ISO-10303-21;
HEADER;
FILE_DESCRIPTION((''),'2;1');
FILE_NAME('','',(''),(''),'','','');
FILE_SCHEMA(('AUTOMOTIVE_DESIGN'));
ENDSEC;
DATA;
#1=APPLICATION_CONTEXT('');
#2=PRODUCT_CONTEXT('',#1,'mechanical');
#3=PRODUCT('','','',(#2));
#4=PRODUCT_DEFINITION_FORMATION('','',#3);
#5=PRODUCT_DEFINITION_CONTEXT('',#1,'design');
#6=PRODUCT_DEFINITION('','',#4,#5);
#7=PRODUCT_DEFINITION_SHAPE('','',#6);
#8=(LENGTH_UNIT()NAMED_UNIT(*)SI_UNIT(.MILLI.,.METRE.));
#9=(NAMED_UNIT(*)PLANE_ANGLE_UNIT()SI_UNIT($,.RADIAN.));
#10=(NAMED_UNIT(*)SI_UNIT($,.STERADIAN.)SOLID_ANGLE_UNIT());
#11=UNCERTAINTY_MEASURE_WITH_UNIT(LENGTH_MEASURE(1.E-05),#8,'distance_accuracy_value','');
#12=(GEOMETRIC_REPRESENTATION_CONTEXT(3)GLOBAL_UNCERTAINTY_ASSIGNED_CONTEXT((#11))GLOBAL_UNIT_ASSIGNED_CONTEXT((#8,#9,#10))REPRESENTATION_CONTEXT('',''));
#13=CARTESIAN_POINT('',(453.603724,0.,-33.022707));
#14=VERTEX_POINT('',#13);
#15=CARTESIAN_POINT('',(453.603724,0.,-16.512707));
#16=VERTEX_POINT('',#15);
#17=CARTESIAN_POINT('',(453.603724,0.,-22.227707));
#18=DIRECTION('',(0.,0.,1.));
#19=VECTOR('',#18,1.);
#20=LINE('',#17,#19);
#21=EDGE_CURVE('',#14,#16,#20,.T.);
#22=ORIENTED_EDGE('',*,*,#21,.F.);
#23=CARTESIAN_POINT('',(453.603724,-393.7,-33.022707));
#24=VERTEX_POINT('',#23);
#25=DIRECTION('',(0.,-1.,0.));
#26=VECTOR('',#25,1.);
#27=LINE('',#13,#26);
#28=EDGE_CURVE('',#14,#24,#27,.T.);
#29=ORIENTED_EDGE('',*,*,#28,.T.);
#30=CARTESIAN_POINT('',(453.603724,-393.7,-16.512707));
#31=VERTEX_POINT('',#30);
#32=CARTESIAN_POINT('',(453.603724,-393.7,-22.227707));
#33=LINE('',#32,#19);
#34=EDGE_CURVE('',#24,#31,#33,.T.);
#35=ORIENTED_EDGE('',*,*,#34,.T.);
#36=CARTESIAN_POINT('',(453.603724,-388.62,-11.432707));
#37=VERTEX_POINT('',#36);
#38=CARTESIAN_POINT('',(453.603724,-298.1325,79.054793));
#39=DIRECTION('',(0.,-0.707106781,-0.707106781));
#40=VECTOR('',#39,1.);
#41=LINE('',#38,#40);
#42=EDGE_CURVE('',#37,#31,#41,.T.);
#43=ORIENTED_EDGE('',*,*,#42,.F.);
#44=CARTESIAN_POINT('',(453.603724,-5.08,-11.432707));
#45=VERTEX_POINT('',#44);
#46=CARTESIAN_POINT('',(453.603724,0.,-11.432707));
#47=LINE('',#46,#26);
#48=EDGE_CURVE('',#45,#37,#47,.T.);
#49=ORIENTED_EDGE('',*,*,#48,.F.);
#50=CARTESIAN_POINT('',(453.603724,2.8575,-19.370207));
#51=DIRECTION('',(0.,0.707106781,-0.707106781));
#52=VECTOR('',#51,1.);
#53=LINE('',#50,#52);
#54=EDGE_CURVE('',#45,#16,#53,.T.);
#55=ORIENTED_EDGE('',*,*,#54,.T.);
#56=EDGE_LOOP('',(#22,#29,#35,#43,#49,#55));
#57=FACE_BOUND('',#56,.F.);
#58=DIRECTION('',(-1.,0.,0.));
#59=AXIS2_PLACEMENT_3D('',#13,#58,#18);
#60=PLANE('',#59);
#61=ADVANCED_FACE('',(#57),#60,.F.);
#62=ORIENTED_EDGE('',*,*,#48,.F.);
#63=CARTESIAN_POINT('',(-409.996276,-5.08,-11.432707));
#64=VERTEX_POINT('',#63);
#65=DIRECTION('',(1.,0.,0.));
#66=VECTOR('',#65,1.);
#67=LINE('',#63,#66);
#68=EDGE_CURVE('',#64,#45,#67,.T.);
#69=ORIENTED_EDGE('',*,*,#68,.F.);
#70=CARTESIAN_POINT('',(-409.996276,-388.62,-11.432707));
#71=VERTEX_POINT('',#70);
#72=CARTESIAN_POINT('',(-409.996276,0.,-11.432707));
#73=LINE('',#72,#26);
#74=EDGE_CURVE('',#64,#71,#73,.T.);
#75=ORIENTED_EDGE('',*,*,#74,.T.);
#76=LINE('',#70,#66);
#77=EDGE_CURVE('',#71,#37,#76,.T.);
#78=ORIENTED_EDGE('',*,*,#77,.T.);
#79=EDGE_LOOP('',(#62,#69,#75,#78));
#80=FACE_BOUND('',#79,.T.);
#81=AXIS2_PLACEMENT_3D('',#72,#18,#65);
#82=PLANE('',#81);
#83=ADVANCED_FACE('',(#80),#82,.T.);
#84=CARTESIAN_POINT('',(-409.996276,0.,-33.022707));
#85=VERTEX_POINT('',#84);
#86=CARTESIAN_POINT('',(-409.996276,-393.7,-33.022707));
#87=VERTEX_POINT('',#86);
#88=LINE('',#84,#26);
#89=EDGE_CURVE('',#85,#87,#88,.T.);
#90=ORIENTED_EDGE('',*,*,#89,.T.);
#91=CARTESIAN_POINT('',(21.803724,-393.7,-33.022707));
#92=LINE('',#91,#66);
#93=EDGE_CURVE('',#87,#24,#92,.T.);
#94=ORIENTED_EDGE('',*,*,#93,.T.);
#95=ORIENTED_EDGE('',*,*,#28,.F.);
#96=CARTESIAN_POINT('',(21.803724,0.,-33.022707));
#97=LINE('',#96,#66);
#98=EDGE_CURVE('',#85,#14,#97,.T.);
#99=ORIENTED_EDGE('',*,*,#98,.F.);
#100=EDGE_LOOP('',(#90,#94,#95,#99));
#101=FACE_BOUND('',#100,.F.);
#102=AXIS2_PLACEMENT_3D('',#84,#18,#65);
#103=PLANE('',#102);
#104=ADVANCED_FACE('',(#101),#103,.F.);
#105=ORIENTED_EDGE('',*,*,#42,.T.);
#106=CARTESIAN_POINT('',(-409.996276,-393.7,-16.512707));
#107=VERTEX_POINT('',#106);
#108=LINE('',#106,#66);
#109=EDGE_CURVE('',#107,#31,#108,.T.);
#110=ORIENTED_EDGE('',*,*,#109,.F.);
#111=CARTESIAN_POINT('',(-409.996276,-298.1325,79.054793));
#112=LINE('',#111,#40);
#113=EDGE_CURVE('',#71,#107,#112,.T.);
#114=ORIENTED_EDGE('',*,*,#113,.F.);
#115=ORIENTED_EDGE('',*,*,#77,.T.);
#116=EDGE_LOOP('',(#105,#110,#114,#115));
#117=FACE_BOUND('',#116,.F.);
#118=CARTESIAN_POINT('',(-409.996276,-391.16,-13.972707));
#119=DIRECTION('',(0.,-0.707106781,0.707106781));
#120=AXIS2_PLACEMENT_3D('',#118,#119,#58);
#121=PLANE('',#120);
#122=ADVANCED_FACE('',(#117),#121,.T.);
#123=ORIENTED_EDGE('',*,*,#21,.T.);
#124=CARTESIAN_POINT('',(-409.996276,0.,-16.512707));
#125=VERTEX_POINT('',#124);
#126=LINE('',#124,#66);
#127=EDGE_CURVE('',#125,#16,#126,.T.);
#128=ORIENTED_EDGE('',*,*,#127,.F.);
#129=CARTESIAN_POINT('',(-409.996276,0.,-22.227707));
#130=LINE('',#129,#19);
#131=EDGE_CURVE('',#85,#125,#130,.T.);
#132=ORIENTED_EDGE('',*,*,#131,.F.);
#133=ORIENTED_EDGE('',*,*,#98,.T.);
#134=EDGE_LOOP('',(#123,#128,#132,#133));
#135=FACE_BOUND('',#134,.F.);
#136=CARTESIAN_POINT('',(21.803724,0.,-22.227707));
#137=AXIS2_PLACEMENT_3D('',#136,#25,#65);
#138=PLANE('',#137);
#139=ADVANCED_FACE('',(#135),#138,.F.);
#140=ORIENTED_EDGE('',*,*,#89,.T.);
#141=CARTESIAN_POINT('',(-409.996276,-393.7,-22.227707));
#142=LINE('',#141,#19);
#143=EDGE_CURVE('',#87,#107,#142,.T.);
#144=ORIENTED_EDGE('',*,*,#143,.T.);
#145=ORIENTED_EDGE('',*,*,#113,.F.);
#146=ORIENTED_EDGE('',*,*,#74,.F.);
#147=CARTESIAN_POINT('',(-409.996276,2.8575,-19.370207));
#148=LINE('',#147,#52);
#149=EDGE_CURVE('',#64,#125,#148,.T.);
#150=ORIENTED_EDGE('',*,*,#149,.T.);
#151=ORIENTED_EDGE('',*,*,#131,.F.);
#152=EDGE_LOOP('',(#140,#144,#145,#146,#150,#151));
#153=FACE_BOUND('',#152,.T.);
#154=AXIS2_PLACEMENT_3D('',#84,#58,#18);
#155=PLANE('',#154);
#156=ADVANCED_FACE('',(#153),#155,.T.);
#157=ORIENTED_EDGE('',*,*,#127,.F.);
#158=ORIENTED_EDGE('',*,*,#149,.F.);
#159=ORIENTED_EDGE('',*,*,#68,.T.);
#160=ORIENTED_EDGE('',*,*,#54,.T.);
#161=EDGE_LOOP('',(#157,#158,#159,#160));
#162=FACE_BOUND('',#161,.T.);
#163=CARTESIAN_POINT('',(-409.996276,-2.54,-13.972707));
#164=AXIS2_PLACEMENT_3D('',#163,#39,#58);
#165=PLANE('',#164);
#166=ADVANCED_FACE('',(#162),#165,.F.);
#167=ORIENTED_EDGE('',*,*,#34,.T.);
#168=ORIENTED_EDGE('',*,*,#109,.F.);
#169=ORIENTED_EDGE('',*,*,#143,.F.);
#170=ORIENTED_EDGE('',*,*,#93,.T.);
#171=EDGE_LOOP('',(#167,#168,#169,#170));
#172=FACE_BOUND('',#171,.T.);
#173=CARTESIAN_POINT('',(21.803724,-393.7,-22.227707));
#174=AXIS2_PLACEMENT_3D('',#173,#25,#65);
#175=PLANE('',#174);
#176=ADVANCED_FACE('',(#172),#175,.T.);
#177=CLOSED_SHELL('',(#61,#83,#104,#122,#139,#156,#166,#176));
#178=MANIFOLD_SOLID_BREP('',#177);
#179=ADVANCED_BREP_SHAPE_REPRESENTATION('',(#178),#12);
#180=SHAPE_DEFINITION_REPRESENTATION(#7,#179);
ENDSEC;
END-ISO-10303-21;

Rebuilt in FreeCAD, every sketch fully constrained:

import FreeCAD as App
import Part
import Sketcher
Q = App.Units.Quantity


def edges_at(feature, points):
    """Names of the edges that pass closest to the given points."""
    edges = feature.Shape.Edges
    near = lambda p: min(range(len(edges)), key=lambda i: edges[i].distToShape(Part.Vertex(*p))[0])
    return sorted({f"Edge{near(p) + 1}" for p in points})


def add_polygon(sketch, points):
    """Adds a closed chain of lines whose ends are joined by coincident constraints."""
    first, n = sketch.GeometryCount, len(points)
    for a, b in zip(points, points[1:] + points[:1]):
        sketch.addGeometry(Part.LineSegment(App.Vector(*a, 0), App.Vector(*b, 0)), False)
    for i in range(n):
        sketch.addConstraint(Sketcher.Constraint("Coincident", first + i, 2, first + (i + 1) % n, 1))

doc = App.newDocument("Part")
body = doc.addObject("PartDesign::Body", "Body")

sketch1 = doc.addObject("Sketcher::SketchObject", "Sketch")
body.addObject(sketch1)
sketch1.AttachmentSupport = (doc.XZ_Plane, [""])
sketch1.MapMode = "FlatFace"
add_polygon(sketch1, [(-409.996276, -11.432707), (-409.996276, -33.022707), (453.603724, -33.022707), (453.603724, -11.432707)])
sketch1.addConstraint(Sketcher.Constraint("Vertical", 0))
sketch1.addConstraint(Sketcher.Constraint("Horizontal", 1))
sketch1.addConstraint(Sketcher.Constraint("Vertical", 2))
sketch1.addConstraint(Sketcher.Constraint("Horizontal", 3))
sketch1.addConstraint(Sketcher.Constraint("DistanceX", 1, 1, 1, 2, Q("34 in")))
sketch1.addConstraint(Sketcher.Constraint("DistanceY", 0, 2, 0, 1, Q("0.85 in")))
sketch1.addConstraint(Sketcher.Constraint("DistanceX", 0, 2, -1, 1, 409.996276))
sketch1.addConstraint(Sketcher.Constraint("DistanceY", 0, 2, -1, 1, 33.022707))
pad1 = doc.addObject("PartDesign::Pad", "Pad")
body.addObject(pad1)
pad1.Profile = sketch1
pad1.Length = Q("15.5 in")
doc.recompute()

chamfer = doc.addObject("PartDesign::Chamfer", "Chamfer")
body.addObject(chamfer)
chamfer.Base = (pad1, edges_at(pad1, [(21.804, -393.7, -11.433), (21.804, 0, -11.433)]))
chamfer.Size = Q("0.2 in")

doc.recompute()
